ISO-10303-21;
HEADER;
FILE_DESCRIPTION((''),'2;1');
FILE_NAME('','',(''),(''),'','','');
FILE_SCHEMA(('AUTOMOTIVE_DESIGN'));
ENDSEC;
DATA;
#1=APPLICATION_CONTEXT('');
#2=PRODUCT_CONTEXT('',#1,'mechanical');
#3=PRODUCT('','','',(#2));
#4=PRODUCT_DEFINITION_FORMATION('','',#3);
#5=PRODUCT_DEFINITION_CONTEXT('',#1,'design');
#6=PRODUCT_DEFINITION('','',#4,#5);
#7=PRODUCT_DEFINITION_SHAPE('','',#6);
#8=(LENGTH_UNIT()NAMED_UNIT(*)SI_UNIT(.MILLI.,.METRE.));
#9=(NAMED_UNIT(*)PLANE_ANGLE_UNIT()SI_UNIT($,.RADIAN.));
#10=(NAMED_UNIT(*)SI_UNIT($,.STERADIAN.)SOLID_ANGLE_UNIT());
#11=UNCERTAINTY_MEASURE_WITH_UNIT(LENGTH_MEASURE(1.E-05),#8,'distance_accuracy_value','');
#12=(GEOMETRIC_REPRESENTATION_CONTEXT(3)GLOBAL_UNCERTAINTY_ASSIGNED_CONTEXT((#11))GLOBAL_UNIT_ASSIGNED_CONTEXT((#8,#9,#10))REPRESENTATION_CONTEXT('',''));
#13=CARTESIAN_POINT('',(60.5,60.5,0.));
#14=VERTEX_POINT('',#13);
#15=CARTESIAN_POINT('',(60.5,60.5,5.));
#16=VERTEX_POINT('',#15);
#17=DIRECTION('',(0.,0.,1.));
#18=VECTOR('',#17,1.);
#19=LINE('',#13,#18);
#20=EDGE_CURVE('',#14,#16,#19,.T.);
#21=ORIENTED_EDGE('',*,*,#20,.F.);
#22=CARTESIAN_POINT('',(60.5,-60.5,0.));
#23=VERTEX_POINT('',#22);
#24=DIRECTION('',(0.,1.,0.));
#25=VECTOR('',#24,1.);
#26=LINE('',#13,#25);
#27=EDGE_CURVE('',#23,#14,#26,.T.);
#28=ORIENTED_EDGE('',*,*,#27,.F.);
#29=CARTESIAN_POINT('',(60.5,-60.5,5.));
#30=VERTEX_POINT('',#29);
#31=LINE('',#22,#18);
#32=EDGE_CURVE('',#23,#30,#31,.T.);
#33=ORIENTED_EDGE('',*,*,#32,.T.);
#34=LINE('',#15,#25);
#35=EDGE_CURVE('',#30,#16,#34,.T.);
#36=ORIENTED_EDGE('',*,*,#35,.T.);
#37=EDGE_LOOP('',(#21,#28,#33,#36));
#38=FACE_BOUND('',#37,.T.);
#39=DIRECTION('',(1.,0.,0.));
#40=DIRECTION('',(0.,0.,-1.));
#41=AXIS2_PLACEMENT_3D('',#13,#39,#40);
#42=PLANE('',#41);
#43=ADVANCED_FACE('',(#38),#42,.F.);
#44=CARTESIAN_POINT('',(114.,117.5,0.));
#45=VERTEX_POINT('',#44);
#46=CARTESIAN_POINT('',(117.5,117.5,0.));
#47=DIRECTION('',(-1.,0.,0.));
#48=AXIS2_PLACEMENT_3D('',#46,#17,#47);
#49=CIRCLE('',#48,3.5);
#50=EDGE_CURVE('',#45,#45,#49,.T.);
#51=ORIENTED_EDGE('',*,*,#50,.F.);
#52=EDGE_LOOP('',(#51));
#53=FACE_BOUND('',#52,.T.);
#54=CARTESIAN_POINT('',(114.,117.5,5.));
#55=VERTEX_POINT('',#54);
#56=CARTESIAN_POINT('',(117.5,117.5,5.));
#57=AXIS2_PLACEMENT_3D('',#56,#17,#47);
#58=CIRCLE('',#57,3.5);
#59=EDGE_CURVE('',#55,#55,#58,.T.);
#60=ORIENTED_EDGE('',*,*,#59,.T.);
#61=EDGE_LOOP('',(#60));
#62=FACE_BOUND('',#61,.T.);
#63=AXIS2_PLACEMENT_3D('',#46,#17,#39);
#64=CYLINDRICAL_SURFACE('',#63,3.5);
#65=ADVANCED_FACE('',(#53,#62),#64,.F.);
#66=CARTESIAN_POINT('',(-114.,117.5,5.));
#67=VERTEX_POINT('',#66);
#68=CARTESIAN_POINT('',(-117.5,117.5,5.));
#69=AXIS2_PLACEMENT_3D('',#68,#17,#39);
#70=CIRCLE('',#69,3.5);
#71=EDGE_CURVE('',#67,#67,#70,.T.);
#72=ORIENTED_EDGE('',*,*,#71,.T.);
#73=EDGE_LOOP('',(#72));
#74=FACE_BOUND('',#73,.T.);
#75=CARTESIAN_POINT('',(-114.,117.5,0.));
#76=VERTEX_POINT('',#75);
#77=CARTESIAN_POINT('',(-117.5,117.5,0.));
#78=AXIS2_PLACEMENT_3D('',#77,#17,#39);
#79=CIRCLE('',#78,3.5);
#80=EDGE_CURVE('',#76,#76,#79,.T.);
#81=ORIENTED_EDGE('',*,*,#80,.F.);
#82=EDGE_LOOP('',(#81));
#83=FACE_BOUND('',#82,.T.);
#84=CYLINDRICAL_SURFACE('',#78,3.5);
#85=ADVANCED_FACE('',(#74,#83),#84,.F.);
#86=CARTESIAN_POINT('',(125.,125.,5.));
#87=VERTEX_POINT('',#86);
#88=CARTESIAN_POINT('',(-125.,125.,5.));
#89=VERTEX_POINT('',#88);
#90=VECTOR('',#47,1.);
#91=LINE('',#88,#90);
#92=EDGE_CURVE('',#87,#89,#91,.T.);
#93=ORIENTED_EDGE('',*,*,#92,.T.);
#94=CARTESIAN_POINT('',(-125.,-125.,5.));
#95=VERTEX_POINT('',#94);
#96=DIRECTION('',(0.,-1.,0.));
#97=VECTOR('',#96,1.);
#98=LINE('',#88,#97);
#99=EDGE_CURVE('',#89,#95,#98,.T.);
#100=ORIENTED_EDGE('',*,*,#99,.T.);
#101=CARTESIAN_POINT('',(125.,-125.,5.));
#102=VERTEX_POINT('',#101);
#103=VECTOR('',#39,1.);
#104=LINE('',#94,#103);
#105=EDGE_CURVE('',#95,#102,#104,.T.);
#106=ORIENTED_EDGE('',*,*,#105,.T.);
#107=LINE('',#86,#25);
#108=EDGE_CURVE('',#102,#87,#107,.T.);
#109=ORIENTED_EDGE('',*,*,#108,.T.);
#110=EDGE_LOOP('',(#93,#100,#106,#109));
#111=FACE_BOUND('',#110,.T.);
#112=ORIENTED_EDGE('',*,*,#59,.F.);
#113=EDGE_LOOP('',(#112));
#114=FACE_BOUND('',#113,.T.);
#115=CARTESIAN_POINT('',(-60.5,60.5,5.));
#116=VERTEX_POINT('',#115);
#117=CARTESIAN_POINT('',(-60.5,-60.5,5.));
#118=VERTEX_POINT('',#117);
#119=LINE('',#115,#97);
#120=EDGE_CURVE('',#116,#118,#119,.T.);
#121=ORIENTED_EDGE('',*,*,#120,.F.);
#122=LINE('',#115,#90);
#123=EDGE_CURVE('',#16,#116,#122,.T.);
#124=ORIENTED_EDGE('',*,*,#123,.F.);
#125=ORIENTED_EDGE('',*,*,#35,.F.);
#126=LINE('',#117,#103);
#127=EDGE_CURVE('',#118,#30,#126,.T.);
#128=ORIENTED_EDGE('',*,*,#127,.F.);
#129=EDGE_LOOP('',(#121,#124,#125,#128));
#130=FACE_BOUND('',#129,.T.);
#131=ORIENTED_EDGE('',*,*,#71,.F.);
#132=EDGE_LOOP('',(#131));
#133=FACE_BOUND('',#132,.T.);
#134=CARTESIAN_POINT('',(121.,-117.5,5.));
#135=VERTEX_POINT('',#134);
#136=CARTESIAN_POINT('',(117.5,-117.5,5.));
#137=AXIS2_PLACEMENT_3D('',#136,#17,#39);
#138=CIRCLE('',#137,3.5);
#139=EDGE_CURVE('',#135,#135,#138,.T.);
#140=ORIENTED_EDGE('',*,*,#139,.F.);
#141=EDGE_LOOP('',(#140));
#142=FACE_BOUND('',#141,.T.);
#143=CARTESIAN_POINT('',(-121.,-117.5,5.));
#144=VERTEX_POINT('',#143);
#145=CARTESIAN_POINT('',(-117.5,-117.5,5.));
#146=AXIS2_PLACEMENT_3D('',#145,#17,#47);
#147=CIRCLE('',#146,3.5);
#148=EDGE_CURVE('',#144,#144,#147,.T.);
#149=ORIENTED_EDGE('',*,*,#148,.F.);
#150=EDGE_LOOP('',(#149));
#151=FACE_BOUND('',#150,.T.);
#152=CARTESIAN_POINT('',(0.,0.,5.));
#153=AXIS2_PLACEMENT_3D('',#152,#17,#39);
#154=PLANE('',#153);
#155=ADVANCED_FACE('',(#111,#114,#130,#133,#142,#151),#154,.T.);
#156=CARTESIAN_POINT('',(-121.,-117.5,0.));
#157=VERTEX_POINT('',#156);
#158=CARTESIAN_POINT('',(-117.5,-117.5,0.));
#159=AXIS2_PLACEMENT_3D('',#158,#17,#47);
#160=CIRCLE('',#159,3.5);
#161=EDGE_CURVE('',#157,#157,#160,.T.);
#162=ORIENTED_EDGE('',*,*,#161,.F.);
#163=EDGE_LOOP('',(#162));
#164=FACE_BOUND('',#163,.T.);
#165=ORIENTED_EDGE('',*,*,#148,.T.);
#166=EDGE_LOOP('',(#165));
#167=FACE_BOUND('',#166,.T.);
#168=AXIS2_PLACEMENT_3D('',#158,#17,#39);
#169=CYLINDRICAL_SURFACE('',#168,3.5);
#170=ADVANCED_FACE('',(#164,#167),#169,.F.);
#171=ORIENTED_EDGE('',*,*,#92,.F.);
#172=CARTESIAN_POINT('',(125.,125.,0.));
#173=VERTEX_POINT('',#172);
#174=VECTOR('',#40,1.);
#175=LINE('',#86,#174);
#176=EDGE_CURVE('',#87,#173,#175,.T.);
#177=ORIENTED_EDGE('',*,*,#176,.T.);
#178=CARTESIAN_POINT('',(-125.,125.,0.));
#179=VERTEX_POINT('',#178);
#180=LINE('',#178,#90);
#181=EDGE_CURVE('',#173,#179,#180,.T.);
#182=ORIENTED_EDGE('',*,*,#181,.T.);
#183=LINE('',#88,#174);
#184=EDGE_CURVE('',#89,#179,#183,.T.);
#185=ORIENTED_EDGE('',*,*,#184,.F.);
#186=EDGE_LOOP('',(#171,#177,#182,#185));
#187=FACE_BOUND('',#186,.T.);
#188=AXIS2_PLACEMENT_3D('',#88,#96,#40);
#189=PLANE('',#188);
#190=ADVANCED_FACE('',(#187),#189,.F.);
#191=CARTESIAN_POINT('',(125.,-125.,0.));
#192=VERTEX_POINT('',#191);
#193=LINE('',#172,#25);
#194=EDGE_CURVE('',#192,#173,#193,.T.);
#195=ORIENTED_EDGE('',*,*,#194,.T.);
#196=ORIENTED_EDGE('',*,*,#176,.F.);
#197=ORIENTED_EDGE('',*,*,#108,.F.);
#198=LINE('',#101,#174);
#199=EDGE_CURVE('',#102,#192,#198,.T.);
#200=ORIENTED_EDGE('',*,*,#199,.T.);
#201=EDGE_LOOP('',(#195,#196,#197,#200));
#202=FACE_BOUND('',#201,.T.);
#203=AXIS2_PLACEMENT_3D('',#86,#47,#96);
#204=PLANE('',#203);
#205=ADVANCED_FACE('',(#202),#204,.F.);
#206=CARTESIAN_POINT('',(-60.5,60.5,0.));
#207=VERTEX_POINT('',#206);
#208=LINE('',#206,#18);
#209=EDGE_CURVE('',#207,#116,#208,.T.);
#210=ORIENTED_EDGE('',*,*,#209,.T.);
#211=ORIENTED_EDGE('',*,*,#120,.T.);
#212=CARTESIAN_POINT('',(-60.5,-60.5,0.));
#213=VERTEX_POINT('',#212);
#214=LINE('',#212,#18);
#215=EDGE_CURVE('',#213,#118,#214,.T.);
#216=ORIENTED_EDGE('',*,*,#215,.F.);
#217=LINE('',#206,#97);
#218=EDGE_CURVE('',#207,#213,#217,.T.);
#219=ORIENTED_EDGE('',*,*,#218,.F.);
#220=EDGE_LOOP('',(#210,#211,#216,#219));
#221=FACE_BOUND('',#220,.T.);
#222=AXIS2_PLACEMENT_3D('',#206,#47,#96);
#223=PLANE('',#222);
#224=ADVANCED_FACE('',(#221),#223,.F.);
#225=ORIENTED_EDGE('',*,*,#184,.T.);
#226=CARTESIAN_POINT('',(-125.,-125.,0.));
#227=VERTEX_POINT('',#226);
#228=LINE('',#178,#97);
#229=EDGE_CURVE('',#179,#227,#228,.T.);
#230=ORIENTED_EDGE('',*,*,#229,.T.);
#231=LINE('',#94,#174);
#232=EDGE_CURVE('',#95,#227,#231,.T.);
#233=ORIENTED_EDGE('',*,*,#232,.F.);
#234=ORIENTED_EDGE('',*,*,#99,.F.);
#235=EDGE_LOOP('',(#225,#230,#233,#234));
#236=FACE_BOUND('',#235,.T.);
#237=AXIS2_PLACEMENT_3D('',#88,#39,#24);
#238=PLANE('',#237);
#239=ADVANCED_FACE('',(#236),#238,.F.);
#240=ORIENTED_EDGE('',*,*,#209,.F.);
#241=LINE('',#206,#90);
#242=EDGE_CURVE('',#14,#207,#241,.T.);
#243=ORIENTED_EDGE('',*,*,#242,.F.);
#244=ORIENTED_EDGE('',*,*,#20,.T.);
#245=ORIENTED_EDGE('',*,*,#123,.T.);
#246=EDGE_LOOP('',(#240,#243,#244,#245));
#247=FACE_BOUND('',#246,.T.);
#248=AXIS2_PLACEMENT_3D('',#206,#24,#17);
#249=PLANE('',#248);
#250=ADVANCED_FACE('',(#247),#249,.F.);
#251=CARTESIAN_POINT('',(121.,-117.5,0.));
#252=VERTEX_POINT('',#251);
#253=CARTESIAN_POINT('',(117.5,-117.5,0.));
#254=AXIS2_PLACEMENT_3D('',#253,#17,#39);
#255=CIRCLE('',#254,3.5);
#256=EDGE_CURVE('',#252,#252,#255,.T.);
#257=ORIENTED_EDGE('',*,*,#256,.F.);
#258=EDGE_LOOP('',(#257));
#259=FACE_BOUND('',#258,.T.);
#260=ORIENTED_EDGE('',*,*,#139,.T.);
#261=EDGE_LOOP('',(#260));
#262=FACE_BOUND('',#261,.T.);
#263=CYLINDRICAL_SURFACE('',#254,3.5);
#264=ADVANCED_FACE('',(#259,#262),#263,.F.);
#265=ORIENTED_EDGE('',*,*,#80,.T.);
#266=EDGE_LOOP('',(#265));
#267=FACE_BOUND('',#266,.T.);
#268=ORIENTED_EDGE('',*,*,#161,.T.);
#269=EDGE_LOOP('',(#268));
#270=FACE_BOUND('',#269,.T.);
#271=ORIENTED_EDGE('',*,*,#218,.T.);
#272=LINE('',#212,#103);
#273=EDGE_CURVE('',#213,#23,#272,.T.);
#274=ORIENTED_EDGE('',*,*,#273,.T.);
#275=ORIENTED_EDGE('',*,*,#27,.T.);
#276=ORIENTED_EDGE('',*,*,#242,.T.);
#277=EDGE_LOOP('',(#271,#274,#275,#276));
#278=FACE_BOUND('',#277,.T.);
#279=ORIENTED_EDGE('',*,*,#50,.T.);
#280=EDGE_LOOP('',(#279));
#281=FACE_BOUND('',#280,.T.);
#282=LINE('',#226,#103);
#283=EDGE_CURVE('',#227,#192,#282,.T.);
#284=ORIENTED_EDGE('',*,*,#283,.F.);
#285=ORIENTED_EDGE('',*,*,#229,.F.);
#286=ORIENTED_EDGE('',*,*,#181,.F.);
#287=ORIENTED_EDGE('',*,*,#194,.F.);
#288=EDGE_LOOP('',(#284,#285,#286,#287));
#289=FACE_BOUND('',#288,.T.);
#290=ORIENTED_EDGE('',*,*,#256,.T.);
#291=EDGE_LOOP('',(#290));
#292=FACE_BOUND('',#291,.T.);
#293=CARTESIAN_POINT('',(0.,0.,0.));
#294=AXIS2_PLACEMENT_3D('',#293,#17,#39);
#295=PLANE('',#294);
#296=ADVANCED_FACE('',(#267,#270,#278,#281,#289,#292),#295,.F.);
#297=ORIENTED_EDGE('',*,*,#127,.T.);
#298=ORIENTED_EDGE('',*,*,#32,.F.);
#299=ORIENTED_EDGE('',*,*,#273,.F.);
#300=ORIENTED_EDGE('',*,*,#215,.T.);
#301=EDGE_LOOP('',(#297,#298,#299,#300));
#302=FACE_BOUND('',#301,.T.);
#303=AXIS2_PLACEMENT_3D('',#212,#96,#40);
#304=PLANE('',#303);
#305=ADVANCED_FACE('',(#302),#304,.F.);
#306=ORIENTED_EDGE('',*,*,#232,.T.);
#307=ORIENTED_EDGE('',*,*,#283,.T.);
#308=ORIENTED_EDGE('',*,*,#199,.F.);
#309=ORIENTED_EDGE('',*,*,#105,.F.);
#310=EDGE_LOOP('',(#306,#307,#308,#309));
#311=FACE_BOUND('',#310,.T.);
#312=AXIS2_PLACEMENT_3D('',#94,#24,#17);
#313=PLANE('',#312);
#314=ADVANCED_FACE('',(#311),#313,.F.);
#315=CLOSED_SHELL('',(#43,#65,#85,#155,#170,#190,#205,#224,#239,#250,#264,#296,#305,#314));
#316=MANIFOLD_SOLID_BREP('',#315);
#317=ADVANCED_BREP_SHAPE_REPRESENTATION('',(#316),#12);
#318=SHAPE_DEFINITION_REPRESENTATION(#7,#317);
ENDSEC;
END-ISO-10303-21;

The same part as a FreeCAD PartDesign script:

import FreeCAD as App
import Part
import Sketcher
from FreeCAD import Vector
Q = App.Units.Quantity


def add_polygon(sketch, points):
    """Adds a closed chain of lines whose ends are joined by coincident constraints."""
    first, n = sketch.GeometryCount, len(points)
    for a, b in zip(points, points[1:] + points[:1]):
        sketch.addGeometry(Part.LineSegment(App.Vector(*a, 0), App.Vector(*b, 0)), False)
    for i in range(n):
        sketch.addConstraint(Sketcher.Constraint("Coincident", first + i, 2, first + (i + 1) % n, 1))

doc = App.newDocument("Part")
body = doc.addObject("PartDesign::Body", "Body")

sketch1 = body.newObject("Sketcher::SketchObject", "Sketch")
sketch1.AttachmentSupport = (doc.getObject("XY_Plane"), [""])
sketch1.MapMode = "FlatFace"
add_polygon(sketch1, [(-125, 125), (-125, -125), (125, -125), (125, 125)])
sketch1.addConstraint(Sketcher.Constraint("Vertical", 0))
sketch1.addConstraint(Sketcher.Constraint("Horizontal", 1))
sketch1.addConstraint(Sketcher.Constraint("Vertical", 2))
sketch1.addConstraint(Sketcher.Constraint("Horizontal", 3))
sketch1.addConstraint(Sketcher.Constraint("Symmetric", 0, 2, 2, 2, -1, 1))
sketch1.addConstraint(Sketcher.Constraint("Equal", 3, 0))
sketch1.addConstraint(Sketcher.Constraint("DistanceX", 1, 1, 1, 2, Q("250 mm")))
pad1 = body.newObject("PartDesign::Pad", "Pad")
pad1.Profile = sketch1
pad1.Length = 5

sketch2 = body.newObject("Sketcher::SketchObject", "Sketch001")
sketch2.AttachmentSupport = (doc.getObject("XY_Plane"), [""])
sketch2.MapMode = "FlatFace"
sketch2.AttachmentOffset = App.Placement(Vector(0, 0, 5), App.Rotation())
sketch2.addGeometry(Part.Circle(Vector(-117.5, 117.5, 0), Vector(0, 0, 1), 3.5), False)
sketch2.addGeometry(Part.Circle(Vector(117.5, 117.5, 0), Vector(0, 0, 1), 3.5), False)
sketch2.addGeometry(Part.Circle(Vector(-117.5, -117.5, 0), Vector(0, 0, 1), 3.5), False)
sketch2.addGeometry(Part.Circle(Vector(117.5, -117.5, 0), Vector(0, 0, 1), 3.5), False)
sketch2.addConstraint(Sketcher.Constraint("Equal", 0, 1))
sketch2.addConstraint(Sketcher.Constraint("Equal", 1, 2))
sketch2.addConstraint(Sketcher.Constraint("Equal", 2, 3))
sketch2.addConstraint(Sketcher.Constraint("Symmetric", 1, 3, 2, 3, -1, 1))
sketch2.addConstraint(Sketcher.Constraint("Symmetric", 0, 3, 3, 3, -1, 1))
sketch2.addConstraint(Sketcher.Constraint("Symmetric", 0, 3, 1, 3, -2))
sketch2.addConstraint(Sketcher.Constraint("Diameter", 0, Q("7 mm")))
sketch2.addConstraint(Sketcher.Constraint("DistanceX", 0, 3, 1, 3, Q("235 mm")))
sketch2.addConstraint(Sketcher.Constraint("DistanceY", 2, 3, 0, 3, Q("235 mm")))
pocket1 = body.newObject("PartDesign::Pocket", "Pocket")
pocket1.Profile = sketch2
pocket1.Type = "ThroughAll"

sketch3 = body.newObject("Sketcher::SketchObject", "Sketch002")
sketch3.AttachmentSupport = (doc.getObject("XY_Plane"), [""])
sketch3.MapMode = "FlatFace"
sketch3.AttachmentOffset = App.Placement(Vector(0, 0, 5), App.Rotation())
add_polygon(sketch3, [(-60, 60), (-60, -60), (60, -60), (60, 60)])
sketch3.addConstraint(Sketcher.Constraint("Vertical", 0))
sketch3.addConstraint(Sketcher.Constraint("Horizontal", 1))
sketch3.addConstraint(Sketcher.Constraint("Vertical", 2))
sketch3.addConstraint(Sketcher.Constraint("Horizontal", 3))
sketch3.addConstraint(Sketcher.Constraint("Symmetric", 0, 2, 2, 2, -1, 1))
sketch3.addConstraint(Sketcher.Constraint("Equal", 3, 0))
sketch3.addConstraint(Sketcher.Constraint("DistanceX", 1, 1, 1, 2, Q("121 mm")))
pocket2 = body.newObject("PartDesign::Pocket", "Pocket001")
pocket2.Profile = sketch3
pocket2.Type = "ThroughAll"

doc.recompute()
